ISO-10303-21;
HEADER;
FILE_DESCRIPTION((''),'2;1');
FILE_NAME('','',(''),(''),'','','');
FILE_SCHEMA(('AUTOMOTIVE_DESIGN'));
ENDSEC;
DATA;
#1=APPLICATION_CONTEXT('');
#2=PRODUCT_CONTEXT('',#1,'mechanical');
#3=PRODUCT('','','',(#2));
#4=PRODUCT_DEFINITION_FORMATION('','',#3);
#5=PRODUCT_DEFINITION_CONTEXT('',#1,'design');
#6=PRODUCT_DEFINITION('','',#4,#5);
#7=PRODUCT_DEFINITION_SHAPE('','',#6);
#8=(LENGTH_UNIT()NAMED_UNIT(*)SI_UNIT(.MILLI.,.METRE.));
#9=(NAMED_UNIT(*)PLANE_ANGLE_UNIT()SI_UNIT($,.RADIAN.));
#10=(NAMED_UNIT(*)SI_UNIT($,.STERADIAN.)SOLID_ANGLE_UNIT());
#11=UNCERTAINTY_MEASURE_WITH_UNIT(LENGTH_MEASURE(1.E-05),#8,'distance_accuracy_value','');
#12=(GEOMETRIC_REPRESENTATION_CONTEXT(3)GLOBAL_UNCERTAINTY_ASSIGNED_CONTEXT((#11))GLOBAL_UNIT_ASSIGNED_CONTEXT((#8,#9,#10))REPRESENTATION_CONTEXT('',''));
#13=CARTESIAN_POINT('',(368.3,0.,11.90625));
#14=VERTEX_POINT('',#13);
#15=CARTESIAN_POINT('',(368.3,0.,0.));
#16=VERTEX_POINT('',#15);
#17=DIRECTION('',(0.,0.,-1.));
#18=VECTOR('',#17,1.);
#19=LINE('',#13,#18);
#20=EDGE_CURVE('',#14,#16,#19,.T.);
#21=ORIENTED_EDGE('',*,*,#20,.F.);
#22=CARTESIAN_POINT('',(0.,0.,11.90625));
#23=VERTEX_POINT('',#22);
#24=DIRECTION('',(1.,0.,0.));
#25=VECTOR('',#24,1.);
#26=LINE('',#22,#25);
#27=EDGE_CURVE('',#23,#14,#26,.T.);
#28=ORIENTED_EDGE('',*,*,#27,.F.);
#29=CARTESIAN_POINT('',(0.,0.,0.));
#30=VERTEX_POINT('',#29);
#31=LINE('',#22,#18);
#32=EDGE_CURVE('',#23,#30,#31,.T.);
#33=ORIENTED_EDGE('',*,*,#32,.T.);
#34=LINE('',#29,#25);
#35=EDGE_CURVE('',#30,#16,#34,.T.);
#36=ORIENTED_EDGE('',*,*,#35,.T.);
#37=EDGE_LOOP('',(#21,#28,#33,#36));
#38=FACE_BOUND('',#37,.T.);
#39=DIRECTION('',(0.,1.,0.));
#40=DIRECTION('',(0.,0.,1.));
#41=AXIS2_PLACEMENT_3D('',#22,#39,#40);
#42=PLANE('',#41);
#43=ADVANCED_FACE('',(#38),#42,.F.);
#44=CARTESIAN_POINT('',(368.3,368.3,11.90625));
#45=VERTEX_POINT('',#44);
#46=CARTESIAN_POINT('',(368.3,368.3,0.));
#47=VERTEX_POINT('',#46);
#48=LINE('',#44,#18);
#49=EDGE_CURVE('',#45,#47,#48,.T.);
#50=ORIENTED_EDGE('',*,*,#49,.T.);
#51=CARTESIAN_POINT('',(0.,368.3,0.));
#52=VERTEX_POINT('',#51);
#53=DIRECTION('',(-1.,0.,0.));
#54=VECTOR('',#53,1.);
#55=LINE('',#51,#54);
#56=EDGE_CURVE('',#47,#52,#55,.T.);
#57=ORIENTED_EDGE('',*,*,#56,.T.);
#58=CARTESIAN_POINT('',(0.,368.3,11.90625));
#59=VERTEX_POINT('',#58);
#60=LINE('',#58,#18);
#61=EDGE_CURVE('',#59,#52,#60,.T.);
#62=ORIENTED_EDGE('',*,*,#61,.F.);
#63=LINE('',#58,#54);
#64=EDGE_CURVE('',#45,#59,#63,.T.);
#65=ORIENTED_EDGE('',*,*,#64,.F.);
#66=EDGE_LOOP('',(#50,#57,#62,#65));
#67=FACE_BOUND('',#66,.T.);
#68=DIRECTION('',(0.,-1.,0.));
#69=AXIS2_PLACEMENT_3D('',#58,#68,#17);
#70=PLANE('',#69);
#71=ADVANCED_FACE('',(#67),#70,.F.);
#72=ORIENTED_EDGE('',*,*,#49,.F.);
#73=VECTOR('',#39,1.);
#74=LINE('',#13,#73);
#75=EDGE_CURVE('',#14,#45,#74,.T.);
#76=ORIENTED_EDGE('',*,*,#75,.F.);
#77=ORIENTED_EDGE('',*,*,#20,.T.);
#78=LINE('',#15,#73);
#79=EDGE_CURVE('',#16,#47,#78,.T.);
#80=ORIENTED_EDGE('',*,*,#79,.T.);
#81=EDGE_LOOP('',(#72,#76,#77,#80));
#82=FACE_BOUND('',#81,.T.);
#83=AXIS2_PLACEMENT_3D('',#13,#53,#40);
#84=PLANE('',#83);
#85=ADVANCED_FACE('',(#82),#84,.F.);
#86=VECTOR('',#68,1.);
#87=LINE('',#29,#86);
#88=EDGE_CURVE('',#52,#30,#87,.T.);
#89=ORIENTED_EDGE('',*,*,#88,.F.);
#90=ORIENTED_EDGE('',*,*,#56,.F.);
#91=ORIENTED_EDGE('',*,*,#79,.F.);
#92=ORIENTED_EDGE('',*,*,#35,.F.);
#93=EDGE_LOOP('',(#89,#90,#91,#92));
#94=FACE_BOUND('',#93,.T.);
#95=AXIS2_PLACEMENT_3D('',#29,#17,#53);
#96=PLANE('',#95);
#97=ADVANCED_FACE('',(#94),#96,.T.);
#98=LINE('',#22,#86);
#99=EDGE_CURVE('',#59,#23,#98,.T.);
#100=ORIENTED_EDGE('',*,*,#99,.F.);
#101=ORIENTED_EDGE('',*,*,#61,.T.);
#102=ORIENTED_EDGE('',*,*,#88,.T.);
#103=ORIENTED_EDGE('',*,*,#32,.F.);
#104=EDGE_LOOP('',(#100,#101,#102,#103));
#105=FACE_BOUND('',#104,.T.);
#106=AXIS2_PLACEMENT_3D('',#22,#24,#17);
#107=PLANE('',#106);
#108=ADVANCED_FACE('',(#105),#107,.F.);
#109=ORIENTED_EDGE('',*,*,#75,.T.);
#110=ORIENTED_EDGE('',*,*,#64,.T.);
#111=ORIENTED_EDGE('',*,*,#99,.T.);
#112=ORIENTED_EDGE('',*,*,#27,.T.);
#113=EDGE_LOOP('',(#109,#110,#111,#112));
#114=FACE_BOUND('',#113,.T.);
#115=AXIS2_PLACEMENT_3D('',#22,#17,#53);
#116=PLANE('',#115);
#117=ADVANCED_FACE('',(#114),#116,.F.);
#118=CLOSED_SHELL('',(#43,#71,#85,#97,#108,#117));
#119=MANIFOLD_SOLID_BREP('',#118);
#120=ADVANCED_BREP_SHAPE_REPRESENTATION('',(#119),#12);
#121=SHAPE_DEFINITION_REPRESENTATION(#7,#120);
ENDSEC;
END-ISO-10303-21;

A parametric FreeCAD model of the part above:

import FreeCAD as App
import Part
import Sketcher
from FreeCAD import Vector
Q = App.Units.Quantity


def add_polygon(sketch, points):
    """Adds a closed chain of lines whose ends are joined by coincident constraints."""
    first, n = sketch.GeometryCount, len(points)
    for a, b in zip(points, points[1:] + points[:1]):
        sketch.addGeometry(Part.LineSegment(App.Vector(*a, 0), App.Vector(*b, 0)), False)
    for i in range(n):
        sketch.addConstraint(Sketcher.Constraint("Coincident", first + i, 2, first + (i + 1) % n, 1))

doc = App.newDocument("Part")
body = doc.addObject("PartDesign::Body", "Body")

# Sketch on XY plane
sketch1 = body.newObject("Sketcher::SketchObject", "Sketch")
sketch1.AttachmentSupport = (doc.getObject("XY_Plane"), [""])
sketch1.MapMode = "FlatFace"
add_polygon(sketch1, [(0, 368), (0, 0), (368, 0), (368, 368)])  # lines 0-3
sketch1.addConstraint([
    Sketcher.Constraint("Vertical", 0),
    Sketcher.Constraint("Horizontal", 1),
    Sketcher.Constraint("Vertical", 2),
    Sketcher.Constraint("Horizontal", 3),
    Sketcher.Constraint("Coincident", 0, 2, -1, 1),
    Sketcher.Constraint("Equal", 3, 0),
    Sketcher.Constraint("DistanceX", 1, 1, 1, 2, Q("14.5 in")),
])
pad1 = body.newObject("PartDesign::Pad", "Pad")
pad1.Profile = sketch1
pad1.Length = Q("0.46875 in")

doc.recompute()
